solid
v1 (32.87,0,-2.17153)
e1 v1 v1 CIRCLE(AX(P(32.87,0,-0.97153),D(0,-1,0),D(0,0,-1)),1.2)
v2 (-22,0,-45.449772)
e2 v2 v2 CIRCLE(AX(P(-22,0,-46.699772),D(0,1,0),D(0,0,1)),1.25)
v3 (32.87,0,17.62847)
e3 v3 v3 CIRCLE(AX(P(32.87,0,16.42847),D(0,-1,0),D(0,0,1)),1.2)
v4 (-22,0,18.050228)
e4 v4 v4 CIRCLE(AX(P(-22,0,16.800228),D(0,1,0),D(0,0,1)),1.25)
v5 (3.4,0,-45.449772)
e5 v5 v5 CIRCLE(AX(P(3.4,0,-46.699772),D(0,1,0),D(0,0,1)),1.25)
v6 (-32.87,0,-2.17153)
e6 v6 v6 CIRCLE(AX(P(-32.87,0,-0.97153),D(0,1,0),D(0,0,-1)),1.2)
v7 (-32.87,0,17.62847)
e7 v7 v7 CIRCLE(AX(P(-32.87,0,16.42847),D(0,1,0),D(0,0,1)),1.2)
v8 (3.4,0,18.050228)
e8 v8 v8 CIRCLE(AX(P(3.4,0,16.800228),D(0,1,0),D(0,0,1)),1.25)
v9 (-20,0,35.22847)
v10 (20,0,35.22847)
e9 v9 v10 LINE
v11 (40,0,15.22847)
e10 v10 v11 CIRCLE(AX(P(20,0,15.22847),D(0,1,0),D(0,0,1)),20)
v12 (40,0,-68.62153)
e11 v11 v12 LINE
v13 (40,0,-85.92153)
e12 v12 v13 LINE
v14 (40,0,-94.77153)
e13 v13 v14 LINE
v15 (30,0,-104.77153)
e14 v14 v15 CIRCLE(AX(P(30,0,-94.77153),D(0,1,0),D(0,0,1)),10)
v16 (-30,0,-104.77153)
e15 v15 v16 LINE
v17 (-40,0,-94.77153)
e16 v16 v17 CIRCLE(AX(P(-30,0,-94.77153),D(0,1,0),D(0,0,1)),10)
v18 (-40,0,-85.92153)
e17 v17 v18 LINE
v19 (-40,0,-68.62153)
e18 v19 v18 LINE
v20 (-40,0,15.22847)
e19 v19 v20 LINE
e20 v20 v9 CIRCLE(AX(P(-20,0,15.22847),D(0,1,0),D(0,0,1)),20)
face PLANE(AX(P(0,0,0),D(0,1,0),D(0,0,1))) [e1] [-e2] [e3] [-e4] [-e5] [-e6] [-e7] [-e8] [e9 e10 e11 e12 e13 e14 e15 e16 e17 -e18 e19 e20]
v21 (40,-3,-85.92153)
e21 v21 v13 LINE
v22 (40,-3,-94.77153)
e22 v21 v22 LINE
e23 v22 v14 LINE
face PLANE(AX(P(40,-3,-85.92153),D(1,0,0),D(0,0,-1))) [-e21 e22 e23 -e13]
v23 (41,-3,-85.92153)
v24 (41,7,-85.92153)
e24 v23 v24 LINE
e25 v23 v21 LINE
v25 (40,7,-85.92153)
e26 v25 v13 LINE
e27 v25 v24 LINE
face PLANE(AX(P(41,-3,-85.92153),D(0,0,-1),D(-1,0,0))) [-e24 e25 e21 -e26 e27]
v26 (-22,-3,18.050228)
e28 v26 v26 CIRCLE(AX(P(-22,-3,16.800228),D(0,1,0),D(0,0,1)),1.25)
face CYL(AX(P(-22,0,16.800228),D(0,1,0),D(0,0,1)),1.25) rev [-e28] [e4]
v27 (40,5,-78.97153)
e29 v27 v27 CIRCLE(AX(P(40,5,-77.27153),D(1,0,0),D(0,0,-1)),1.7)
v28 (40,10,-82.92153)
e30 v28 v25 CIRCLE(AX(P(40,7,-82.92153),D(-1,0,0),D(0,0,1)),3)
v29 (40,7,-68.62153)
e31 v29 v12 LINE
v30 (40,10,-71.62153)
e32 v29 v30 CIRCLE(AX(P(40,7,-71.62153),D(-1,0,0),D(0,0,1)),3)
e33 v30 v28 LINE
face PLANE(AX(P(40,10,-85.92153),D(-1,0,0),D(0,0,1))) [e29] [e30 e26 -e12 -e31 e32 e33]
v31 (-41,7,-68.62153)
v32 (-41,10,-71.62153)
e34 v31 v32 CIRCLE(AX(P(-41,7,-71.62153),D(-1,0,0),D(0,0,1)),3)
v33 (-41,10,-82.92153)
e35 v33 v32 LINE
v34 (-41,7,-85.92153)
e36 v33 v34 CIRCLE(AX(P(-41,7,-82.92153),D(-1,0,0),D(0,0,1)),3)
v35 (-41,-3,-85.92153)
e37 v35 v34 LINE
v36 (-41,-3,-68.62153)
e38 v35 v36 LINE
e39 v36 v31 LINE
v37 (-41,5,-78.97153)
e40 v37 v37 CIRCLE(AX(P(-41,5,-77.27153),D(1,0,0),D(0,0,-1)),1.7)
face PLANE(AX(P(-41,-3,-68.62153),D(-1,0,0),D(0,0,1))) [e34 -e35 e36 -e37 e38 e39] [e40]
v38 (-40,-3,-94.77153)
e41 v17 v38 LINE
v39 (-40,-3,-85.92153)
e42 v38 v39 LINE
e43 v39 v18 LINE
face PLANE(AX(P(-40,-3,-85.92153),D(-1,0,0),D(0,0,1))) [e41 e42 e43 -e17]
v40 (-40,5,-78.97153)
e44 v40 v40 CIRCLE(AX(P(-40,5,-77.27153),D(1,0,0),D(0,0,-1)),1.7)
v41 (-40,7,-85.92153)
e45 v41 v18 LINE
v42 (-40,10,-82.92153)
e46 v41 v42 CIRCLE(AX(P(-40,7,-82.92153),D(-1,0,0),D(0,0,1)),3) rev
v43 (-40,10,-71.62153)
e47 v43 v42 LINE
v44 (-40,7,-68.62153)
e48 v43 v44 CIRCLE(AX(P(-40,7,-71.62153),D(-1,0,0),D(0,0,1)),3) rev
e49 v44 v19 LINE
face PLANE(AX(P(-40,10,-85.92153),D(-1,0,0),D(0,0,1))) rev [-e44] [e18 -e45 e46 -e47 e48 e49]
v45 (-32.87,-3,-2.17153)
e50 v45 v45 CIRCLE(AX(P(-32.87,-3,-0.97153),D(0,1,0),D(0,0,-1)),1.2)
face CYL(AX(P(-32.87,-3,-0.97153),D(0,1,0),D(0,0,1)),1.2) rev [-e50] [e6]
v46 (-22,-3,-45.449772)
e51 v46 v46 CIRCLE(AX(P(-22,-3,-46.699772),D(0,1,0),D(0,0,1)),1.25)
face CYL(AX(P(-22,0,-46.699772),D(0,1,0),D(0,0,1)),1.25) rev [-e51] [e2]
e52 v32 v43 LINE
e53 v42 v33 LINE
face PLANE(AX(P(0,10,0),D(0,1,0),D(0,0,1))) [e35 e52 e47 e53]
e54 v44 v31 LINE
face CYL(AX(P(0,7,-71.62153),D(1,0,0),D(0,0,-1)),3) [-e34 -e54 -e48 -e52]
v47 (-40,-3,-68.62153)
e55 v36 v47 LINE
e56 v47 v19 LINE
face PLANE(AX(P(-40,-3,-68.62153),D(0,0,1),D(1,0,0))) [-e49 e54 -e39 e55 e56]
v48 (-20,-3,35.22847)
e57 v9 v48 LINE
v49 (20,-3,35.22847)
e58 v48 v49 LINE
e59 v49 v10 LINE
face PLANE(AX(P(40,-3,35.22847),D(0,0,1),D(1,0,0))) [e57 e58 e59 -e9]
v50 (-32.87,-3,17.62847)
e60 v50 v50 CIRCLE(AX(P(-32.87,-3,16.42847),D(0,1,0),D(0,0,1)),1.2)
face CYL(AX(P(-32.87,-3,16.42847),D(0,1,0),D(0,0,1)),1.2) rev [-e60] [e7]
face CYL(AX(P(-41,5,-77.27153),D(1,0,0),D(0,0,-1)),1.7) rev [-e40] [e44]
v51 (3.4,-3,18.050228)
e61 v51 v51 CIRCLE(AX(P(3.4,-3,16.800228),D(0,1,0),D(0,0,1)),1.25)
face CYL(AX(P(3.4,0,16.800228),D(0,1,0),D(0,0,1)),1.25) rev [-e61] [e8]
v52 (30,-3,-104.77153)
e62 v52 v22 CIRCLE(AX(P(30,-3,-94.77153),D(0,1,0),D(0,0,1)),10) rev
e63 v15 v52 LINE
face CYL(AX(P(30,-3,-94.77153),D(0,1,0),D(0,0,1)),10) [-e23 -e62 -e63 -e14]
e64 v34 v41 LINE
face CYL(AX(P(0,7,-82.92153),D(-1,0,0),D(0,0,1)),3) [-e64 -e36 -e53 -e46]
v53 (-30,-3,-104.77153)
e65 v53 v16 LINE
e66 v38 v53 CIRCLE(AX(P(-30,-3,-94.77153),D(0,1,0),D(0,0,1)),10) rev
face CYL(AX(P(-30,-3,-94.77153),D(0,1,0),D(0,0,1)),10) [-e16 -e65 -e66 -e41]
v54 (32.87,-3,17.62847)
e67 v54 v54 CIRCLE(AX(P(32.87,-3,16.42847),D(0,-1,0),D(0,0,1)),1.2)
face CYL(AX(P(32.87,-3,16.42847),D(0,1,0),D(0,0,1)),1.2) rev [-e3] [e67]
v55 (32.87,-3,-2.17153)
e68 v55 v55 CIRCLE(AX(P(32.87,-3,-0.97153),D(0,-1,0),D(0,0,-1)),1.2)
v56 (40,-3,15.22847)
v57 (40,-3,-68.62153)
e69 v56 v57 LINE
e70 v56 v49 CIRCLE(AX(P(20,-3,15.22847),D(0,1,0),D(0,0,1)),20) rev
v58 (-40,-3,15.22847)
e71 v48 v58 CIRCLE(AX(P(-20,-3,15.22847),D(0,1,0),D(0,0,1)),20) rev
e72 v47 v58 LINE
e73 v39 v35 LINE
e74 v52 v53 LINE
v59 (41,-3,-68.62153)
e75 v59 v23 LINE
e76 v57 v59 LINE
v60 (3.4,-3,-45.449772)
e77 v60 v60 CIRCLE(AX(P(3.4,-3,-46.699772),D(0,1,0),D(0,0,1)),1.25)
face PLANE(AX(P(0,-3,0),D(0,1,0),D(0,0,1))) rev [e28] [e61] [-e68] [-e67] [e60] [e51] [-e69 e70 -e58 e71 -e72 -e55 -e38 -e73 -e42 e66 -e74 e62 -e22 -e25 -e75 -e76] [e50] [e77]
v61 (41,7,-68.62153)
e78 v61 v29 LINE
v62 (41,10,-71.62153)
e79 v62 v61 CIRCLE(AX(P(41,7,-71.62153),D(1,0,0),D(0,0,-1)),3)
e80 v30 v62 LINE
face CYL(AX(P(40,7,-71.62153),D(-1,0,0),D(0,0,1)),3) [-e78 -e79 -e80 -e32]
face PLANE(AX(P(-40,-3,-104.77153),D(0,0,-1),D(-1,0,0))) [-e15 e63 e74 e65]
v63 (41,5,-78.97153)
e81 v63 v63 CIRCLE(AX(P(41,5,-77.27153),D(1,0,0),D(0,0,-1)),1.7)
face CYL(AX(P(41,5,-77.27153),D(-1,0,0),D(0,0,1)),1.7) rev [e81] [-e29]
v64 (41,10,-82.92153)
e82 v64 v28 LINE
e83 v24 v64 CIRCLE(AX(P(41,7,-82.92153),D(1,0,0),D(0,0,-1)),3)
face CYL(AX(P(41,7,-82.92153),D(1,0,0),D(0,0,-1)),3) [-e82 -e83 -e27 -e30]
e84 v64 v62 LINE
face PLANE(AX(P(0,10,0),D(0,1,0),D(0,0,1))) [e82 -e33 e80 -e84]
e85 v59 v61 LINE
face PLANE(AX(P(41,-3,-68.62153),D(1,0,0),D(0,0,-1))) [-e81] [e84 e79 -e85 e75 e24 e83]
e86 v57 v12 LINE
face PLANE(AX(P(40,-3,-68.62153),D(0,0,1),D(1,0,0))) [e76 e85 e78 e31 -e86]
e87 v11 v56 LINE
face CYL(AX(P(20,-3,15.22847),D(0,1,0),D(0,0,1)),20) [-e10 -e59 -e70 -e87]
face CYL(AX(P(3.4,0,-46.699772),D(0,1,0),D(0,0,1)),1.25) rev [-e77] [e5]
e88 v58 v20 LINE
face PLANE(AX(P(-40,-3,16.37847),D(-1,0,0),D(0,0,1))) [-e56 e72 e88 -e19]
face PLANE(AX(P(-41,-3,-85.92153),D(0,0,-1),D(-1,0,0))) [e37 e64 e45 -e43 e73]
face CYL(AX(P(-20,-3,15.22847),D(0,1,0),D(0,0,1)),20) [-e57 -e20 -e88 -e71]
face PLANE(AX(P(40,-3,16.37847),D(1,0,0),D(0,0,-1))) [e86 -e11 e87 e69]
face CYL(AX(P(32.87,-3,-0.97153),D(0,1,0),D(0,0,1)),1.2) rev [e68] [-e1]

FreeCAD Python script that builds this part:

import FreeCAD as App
import Part
import Sketcher

V = App.Vector
Q = App.Units.Quantity


def edges_at(feature, points):
    """Names of the edges that pass closest to the given points."""
    edges = feature.Shape.Edges
    near = lambda p: min(range(len(edges)), key=lambda i: edges[i].distToShape(Part.Vertex(*p))[0])
    return sorted({f"Edge{near(p) + 1}" for p in points})


def add_polygon(sketch, points):
    """Adds a closed chain of lines whose ends are joined by coincident constraints."""
    first, n = sketch.GeometryCount, len(points)
    for a, b in zip(points, points[1:] + points[:1]):
        sketch.addGeometry(Part.LineSegment(App.Vector(*a, 0), App.Vector(*b, 0)), False)
    for i in range(n):
        sketch.addConstraint(Sketcher.Constraint("Coincident", first + i, 2, first + (i + 1) % n, 1))

doc = App.newDocument("Part")
body = doc.addObject("PartDesign::Body", "Body")

sketch1 = doc.addObject("Sketcher::SketchObject", "Sketch")
body.addObject(sketch1)
sketch1.AttachmentSupport = (doc.XZ_Plane, [""])
sketch1.MapMode = "FlatFace"
add_polygon(sketch1, [(-40, 35.2), (40, 35.2), (40, -68.6), (41, -68.6), (41, -85.9), (40, -85.9), (40, -104.8), (-40, -104.8), (-40, -85.9), (-41, -85.9), (-41, -68.6), (-40, -68.6)])
sketch1.addConstraint(Sketcher.Constraint("Horizontal", 0))
sketch1.addConstraint(Sketcher.Constraint("Vertical", 1))
sketch1.addConstraint(Sketcher.Constraint("Horizontal", 2))
sketch1.addConstraint(Sketcher.Constraint("Vertical", 3))
sketch1.addConstraint(Sketcher.Constraint("Horizontal", 4))
sketch1.addConstraint(Sketcher.Constraint("Vertical", 5))
sketch1.addConstraint(Sketcher.Constraint("Horizontal", 6))
sketch1.addConstraint(Sketcher.Constraint("Vertical", 7))
sketch1.addConstraint(Sketcher.Constraint("Horizontal", 8))
sketch1.addConstraint(Sketcher.Constraint("Vertical", 9))
sketch1.addConstraint(Sketcher.Constraint("Horizontal", 10))
sketch1.addConstraint(Sketcher.Constraint("Vertical", 11))
sketch1.addConstraint(Sketcher.Constraint("Symmetric", 4, 2, 7, 2, -2))
sketch1.addConstraint(Sketcher.Constraint("Symmetric", 2, 2, 9, 2, -2))
sketch1.addConstraint(Sketcher.Constraint("Vertical", 1, 2, 4, 2))
sketch1.addConstraint(Sketcher.Constraint("Vertical", 7, 2, 10, 2))
sketch1.addConstraint(Sketcher.Constraint("DistanceX", 0, 1, 0, 2, Q("80 mm")))
sketch1.addConstraint(Sketcher.Constraint("DistanceX", 2, 1, 2, 2, Q("1 mm")))
sketch1.addConstraint(Sketcher.Constraint("DistanceY", 3, 2, 3, 1, Q("17.3 mm")))
sketch1.addConstraint(Sketcher.Constraint("DistanceY", 5, 2, 0, 2, Q("140 mm")))
sketch1.addConstraint(Sketcher.Constraint("DistanceY", 1, 2, 1, 1, Q("103.85 mm")))
sketch1.addConstraint(Sketcher.Constraint("DistanceY", -1, 1, 0, 2, Q("35.22847 mm")))
pad1 = doc.addObject("PartDesign::Pad", "Pad")
body.addObject(pad1)
pad1.Profile = sketch1
pad1.Length = 3
doc.recompute()

fillet = doc.addObject("PartDesign::Fillet", "Fillet")
body.addObject(fillet)
fillet.Base = (pad1, edges_at(pad1, [(-40, -1.5, 35.228)]))
fillet.Radius = 20
doc.recompute()

fillet2 = doc.addObject("PartDesign::Fillet", "Fillet001")
body.addObject(fillet2)
fillet2.Base = (fillet, edges_at(fillet, [(40, -1.5, 35.228)]))
fillet2.Radius = 20
doc.recompute()

fillet3 = doc.addObject("PartDesign::Fillet", "Fillet002")
body.addObject(fillet3)
fillet3.Base = (fillet2, edges_at(fillet2, [(-40, -1.5, -104.772), (40, -1.5, -104.772)]))
fillet3.Radius = 10

sketch2 = doc.addObject("Sketcher::SketchObject", "Sketch001")
body.addObject(sketch2)
sketch2.AttachmentSupport = (doc.XZ_Plane, [""])
sketch2.MapMode = "FlatFace"
sketch2.addGeometry(Part.Circle(V(-32.9, 16.4, 0), V(0, 0, 1), 1.2), False)
sketch2.addGeometry(Part.Circle(V(-32.9, -1, 0), V(0, 0, 1), 1.2), False)
sketch2.addConstraint(Sketcher.Constraint("Equal", 0, 1))
sketch2.addConstraint(Sketcher.Constraint("Vertical", 0, 3, 1, 3))
sketch2.addConstraint(Sketcher.Constraint("Diameter", 0, Q("2.4 mm")))
sketch2.addConstraint(Sketcher.Constraint("DistanceY", 1, 3, 0, 3, Q("17.4 mm")))
sketch2.addConstraint(Sketcher.Constraint("DistanceX", 0, 3, -1, 1, Q("32.87 mm")))
sketch2.addConstraint(Sketcher.Constraint("DistanceY", -1, 1, 0, 3, Q("16.42847 mm")))
pocket1 = doc.addObject("PartDesign::Pocket", "Pocket")
body.addObject(pocket1)
pocket1.Profile = sketch2
pocket1.Type = "ThroughAll"
pocket1.Reversed = True
doc.recompute()

mirrored = doc.addObject("PartDesign::Mirrored", "Mirrored")
body.addObject(mirrored)
mirrored.Originals = [pocket1]
mirrored.MirrorPlane = (doc.YZ_Plane, [""])
body.Tip = mirrored

sketch3 = doc.addObject("Sketcher::SketchObject", "Sketch002")
body.addObject(sketch3)
sketch3.AttachmentSupport = (doc.XZ_Plane, [""])
sketch3.MapMode = "FlatFace"
add_polygon(sketch3, [(-41, -85.9), (-41, -68.6), (-40, -68.6), (-40, -85.9)])
sketch3.addConstraint(Sketcher.Constraint("Vertical", 0))
sketch3.addConstraint(Sketcher.Constraint("Horizontal", 1))
sketch3.addConstraint(Sketcher.Constraint("Vertical", 2))
sketch3.addConstraint(Sketcher.Constraint("Horizontal", 3))
sketch3.addConstraint(Sketcher.Constraint("DistanceX", 1, 1, 1, 2, Q("1 mm")))
sketch3.addConstraint(Sketcher.Constraint("DistanceY", 0, 1, 0, 2, Q("17.3 mm")))
sketch3.addConstraint(Sketcher.Constraint("DistanceX", 0, 2, -1, 1, Q("41 mm")))
sketch3.addConstraint(Sketcher.Constraint("DistanceY", 0, 2, -1, 1, Q("68.62153 mm")))
pad2 = doc.addObject("PartDesign::Pad", "Pad001")
body.addObject(pad2)
pad2.Profile = sketch3
pad2.Length = 10
pad2.Reversed = True

sketch4 = doc.addObject("Sketcher::SketchObject", "Sketch003")
body.addObject(sketch4)
sketch4.AttachmentSupport = (doc.YZ_Plane, [""])
sketch4.MapMode = "FlatFace"
sketch4.AttachmentOffset = App.Placement(V(0, 0, -40), App.Rotation())
sketch4.addGeometry(Part.Circle(V(5, -77.3, 0), V(0, 0, 1), 1.7), False)
sketch4.addConstraint(Sketcher.Constraint("Diameter", 0, Q("3.4 mm")))
sketch4.addConstraint(Sketcher.Constraint("DistanceX", -1, 1, 0, 3, Q("5 mm")))
sketch4.addConstraint(Sketcher.Constraint("DistanceY", 0, 3, -1, 1, Q("77.27153 mm")))
pocket2 = doc.addObject("PartDesign::Pocket", "Pocket001")
body.addObject(pocket2)
pocket2.Profile = sketch4
pocket2.Type = "ThroughAll"
doc.recompute()

fillet4 = doc.addObject("PartDesign::Fillet", "Fillet003")
body.addObject(fillet4)
fillet4.Base = (pocket2, edges_at(pocket2, [(-40.5, 10, -68.622), (-40.5, 10, -85.922)]))
fillet4.Radius = 3
doc.recompute()

mirrored2 = doc.addObject("PartDesign::Mirrored", "Mirrored001")
body.addObject(mirrored2)
mirrored2.Originals = [pad2, pocket2]
mirrored2.MirrorPlane = (doc.YZ_Plane, [""])
body.Tip = mirrored2
doc.recompute()

fillet5 = doc.addObject("PartDesign::Fillet", "Fillet004")
body.addObject(fillet5)
fillet5.Base = (mirrored2, edges_at(mirrored2, [(40.5, 10, -68.622), (40.5, 10, -85.922)]))
fillet5.Radius = 3

sketch5 = doc.addObject("Sketcher::SketchObject", "Sketch004")
body.addObject(sketch5)
sketch5.AttachmentSupport = (doc.XZ_Plane, [""])
sketch5.MapMode = "FlatFace"
sketch5.addGeometry(Part.Circle(V(-22, 16.8, 0), V(0, 0, 1), 1.2), False)
sketch5.addGeometry(Part.Circle(V(3.4, 16.8, 0), V(0, 0, 1), 1.2), False)
sketch5.addGeometry(Part.Circle(V(3.4, -46.7, 0), V(0, 0, 1), 1.2), False)
sketch5.addGeometry(Part.Circle(V(-22, -46.7, 0), V(0, 0, 1), 1.2), False)
sketch5.addConstraint(Sketcher.Constraint("Equal", 0, 1))
sketch5.addConstraint(Sketcher.Constraint("Equal", 1, 2))
sketch5.addConstraint(Sketcher.Constraint("Equal", 2, 3))
sketch5.addConstraint(Sketcher.Constraint("Horizontal", 0, 3, 1, 3))
sketch5.addConstraint(Sketcher.Constraint("Horizontal", 2, 3, 3, 3))
sketch5.addConstraint(Sketcher.Constraint("Vertical", 1, 3, 2, 3))
sketch5.addConstraint(Sketcher.Constraint("Vertical", 0, 3, 3, 3))
sketch5.addConstraint(Sketcher.Constraint("Diameter", 0, Q("2.5 mm")))
sketch5.addConstraint(Sketcher.Constraint("DistanceX", 0, 3, -1, 1, Q("22 mm")))
sketch5.addConstraint(Sketcher.Constraint("DistanceX", -1, 1, 1, 3, Q("3.4 mm")))
sketch5.addConstraint(Sketcher.Constraint("DistanceY", 2, 3, 1, 3, Q("63.5 mm")))
sketch5.addConstraint(Sketcher.Constraint("DistanceY", -1, 1, 0, 3, Q("16.800228 mm")))
doc.recompute()
hole = doc.addObject("PartDesign::Hole", "Hole")
body.addObject(hole)
hole.Profile = sketch5
hole.ThreadType = "None"
hole.Diameter = 2.5
hole.DepthType = "Dimension"
hole.Depth = 3
hole.DrillPoint = "Angled"
hole.DrillPointAngle = 118
hole.Reversed = True

doc.recompute()
